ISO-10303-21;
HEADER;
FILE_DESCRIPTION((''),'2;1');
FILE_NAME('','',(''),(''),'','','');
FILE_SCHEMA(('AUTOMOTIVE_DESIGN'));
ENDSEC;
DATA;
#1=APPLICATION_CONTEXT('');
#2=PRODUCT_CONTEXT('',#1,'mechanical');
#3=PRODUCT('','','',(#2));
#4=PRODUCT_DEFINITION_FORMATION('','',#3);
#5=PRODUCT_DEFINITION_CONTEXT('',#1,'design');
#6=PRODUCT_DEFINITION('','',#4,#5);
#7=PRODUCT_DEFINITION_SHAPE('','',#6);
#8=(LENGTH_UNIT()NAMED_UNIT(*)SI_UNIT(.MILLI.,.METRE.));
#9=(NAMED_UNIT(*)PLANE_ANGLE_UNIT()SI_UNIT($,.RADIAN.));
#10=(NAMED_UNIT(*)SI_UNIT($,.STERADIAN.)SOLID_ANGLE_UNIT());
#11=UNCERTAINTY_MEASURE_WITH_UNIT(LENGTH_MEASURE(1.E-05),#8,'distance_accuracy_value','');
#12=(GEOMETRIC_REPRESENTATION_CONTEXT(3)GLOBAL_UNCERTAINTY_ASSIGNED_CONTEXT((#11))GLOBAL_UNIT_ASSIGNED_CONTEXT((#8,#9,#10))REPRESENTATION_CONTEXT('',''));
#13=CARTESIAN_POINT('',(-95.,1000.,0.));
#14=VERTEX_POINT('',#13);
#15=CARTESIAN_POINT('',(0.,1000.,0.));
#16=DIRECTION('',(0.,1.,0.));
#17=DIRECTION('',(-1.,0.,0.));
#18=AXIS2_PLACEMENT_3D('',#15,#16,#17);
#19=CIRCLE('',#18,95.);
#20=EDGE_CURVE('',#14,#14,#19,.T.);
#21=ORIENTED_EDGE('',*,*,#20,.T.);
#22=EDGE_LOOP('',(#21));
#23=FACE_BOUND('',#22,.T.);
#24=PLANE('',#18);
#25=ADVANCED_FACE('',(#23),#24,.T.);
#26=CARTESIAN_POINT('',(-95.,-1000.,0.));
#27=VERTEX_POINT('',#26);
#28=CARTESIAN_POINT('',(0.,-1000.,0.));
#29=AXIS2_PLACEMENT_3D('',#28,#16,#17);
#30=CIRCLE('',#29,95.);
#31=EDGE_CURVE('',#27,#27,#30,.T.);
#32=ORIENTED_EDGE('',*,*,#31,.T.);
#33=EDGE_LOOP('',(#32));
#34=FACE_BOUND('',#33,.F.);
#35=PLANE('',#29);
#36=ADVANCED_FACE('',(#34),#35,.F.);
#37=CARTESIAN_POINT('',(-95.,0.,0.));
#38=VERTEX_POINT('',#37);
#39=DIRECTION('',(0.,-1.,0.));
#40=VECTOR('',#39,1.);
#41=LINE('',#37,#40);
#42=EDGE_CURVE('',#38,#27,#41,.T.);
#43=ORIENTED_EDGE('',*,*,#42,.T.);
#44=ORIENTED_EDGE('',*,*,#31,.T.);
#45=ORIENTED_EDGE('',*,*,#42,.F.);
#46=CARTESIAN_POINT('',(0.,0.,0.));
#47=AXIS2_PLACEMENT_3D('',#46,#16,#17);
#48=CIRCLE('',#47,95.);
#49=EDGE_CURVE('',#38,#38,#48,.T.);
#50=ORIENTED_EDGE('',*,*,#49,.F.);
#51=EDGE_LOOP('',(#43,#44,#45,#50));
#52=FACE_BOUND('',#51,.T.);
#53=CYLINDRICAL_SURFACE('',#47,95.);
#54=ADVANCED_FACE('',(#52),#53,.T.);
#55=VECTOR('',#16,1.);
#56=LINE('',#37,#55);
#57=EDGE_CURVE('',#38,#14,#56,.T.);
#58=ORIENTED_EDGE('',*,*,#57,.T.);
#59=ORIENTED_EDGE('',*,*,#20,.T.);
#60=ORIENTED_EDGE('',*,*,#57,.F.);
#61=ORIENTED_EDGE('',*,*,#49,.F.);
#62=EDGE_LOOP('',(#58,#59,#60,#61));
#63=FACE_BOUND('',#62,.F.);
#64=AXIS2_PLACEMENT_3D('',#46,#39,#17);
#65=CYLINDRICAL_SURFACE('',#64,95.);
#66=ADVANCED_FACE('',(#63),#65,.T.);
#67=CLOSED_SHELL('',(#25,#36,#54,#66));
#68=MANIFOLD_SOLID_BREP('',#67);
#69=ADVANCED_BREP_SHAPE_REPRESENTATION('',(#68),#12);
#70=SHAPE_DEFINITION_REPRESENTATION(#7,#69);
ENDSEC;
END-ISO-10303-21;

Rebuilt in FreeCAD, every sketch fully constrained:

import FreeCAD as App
import Part
import Sketcher
from FreeCAD import Vector

doc = App.newDocument("Part")
body = doc.addObject("PartDesign::Body", "Body")

sketch1 = body.newObject("Sketcher::SketchObject", "Sketch")
sketch1.AttachmentSupport = (doc.getObject("XZ_Plane"), [""])
sketch1.MapMode = "FlatFace"
sketch1.addGeometry(Part.Circle(Vector(0, 0, 0), Vector(0, 0, 1), 95), False)
sketch1.addConstraint([
    Sketcher.Constraint("Coincident", 0, 3, -1, 1),
    Sketcher.Constraint("Diameter", 0, 190.0),
])
pad1 = body.newObject("PartDesign::Pad", "Pad")
pad1.Profile = sketch1
pad1.Length = 2000
pad1.Midplane = True

doc.recompute()
